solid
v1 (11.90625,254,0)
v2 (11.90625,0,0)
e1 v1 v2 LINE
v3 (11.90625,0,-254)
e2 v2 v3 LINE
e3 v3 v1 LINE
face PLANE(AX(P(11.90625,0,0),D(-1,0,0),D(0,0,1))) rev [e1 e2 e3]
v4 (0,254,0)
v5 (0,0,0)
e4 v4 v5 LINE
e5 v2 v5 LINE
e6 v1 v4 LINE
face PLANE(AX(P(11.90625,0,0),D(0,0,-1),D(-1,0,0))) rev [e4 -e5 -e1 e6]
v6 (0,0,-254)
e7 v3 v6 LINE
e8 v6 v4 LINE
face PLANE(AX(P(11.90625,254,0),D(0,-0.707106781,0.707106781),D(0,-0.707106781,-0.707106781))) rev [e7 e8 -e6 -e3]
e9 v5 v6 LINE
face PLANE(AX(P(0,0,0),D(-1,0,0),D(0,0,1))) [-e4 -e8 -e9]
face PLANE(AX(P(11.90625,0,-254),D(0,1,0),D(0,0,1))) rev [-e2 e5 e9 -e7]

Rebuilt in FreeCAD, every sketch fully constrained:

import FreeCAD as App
import Part
import Sketcher
from FreeCAD import Vector
Q = App.Units.Quantity


def add_polygon(sketch, points):
    """Adds a closed chain of lines whose ends are joined by coincident constraints."""
    first, n = sketch.GeometryCount, len(points)
    for a, b in zip(points, points[1:] + points[:1]):
        sketch.addGeometry(Part.LineSegment(App.Vector(*a, 0), App.Vector(*b, 0)), False)
    for i in range(n):
        sketch.addConstraint(Sketcher.Constraint("Coincident", first + i, 2, first + (i + 1) % n, 1))

doc = App.newDocument("Part")
params = doc.addObject("Spreadsheet::Sheet", "Params")
for row, (alias, value) in enumerate([
    ("sketch1_width", "10 in"),
    ("pad1_length", "0.46875 in"),
], start=1):
    params.set(f"A{row}", alias)
    params.set(f"B{row}", "=" + value)
    params.setAlias(f"B{row}", alias)

body = doc.addObject("PartDesign::Body", "Body")

# Sketch on YZ plane
sketch1 = body.newObject("Sketcher::SketchObject", "Sketch")
sketch1.AttachmentSupport = (doc.getObject("YZ_Plane"), [""])
sketch1.MapMode = "FlatFace"
add_polygon(sketch1, [(254, 0), (0, 0), (0, -254)])  # lines 0-2
sketch1.addConstraint(Sketcher.Constraint("Horizontal", 0))
sketch1.addConstraint(Sketcher.Constraint("Vertical", 1))
sketch1.addConstraint(Sketcher.Constraint("Coincident", 0, 2, -1, 1))
sketch1.addConstraint(Sketcher.Constraint("Equal", 0, 1))
sketch1.addConstraint(Sketcher.Constraint("DistanceX", 0, 2, 0, 1, Q("10 in")))
sketch1.setExpression("Constraints[7]", "Params.sketch1_width")
pad1 = body.newObject("PartDesign::Pad", "Pad")
pad1.Profile = sketch1
pad1.setExpression("Length", "Params.pad1_length")

doc.recompute()
